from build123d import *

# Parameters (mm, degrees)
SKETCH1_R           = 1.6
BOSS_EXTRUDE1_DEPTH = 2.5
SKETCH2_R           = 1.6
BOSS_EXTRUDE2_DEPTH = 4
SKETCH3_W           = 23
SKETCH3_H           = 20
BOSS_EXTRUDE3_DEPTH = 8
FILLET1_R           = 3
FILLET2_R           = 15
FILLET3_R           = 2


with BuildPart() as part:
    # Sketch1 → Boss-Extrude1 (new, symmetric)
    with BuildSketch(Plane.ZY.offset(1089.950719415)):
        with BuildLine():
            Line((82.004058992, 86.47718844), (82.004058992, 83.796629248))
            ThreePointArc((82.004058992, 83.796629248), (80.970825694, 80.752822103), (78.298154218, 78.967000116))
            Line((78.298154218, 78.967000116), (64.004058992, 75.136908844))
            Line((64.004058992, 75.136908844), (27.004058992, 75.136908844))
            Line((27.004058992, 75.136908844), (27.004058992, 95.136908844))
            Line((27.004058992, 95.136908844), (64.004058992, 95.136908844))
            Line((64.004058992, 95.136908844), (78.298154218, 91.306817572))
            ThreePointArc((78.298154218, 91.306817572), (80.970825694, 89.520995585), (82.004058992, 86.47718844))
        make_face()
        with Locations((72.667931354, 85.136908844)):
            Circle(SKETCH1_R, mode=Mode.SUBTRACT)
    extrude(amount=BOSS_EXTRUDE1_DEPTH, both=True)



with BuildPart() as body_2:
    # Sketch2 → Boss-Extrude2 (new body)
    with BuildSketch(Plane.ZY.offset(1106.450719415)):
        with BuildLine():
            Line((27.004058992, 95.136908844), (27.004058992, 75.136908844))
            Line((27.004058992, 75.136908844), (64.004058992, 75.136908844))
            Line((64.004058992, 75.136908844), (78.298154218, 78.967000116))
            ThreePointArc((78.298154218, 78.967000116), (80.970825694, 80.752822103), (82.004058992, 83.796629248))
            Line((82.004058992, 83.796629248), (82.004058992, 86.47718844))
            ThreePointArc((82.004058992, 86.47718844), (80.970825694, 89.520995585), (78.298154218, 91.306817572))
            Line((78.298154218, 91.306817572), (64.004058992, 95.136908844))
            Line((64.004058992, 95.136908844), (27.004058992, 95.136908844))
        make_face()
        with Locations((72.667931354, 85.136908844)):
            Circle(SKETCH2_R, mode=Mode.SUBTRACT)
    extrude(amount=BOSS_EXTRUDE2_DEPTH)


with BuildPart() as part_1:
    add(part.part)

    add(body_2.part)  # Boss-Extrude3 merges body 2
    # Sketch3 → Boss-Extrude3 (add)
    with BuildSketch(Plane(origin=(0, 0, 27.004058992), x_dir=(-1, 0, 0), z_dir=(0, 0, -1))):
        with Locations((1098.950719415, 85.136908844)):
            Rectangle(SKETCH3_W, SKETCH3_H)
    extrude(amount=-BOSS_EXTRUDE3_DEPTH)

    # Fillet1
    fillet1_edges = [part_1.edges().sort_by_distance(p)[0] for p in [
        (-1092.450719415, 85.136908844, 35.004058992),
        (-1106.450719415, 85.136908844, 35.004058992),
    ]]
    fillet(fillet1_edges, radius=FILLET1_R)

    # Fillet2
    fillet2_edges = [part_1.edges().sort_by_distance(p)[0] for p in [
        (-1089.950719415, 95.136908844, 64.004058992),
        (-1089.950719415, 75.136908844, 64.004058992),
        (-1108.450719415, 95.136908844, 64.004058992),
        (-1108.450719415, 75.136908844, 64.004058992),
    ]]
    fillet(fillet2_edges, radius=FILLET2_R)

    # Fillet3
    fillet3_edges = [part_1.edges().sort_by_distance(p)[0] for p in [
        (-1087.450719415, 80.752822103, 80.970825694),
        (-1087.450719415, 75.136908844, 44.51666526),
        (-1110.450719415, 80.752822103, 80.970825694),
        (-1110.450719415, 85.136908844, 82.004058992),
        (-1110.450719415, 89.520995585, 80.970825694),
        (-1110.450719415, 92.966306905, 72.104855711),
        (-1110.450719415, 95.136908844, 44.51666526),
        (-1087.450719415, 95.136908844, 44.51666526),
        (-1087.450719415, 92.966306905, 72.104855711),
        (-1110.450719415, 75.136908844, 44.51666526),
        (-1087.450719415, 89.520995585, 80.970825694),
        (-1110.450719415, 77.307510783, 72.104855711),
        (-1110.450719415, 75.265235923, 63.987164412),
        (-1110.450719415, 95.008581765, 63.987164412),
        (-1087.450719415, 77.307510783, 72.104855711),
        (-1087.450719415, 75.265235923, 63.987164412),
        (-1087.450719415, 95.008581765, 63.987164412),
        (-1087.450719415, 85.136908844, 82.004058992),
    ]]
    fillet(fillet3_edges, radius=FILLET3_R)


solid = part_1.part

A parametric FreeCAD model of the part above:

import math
import FreeCAD as App
import Part
import Sketcher

V = App.Vector
Q = App.Units.Quantity


def edges_at(feature, points):
    """Names of the edges that pass closest to the given points."""
    edges = feature.Shape.Edges
    near = lambda p: min(range(len(edges)), key=lambda i: edges[i].distToShape(Part.Vertex(*p))[0])
    return sorted({f"Edge{near(p) + 1}" for p in points})

doc = App.newDocument("Part")
body = doc.addObject("PartDesign::Body", "Body")

sketch1 = body.newObject("Sketcher::SketchObject", "Sketch")
sketch1.AttachmentSupport = (doc.getObject("YZ_Plane"), [""])
sketch1.MapMode = "FlatFace"
sketch1.AttachmentOffset = App.Placement(V(0, 0, -1089.950719), App.Rotation())
sketch1.addGeometry([
    Part.LineSegment(V(83.8, 82, 0), V(86.5, 82, 0)),
    Part.ArcOfCircle(Part.Circle(V(86.5, 77, 0), V(0, 0, 1), 5), math.radians(15), math.radians(90)),
    Part.LineSegment(V(91.3, 78.3, 0), V(95.1, 64, 0)),
    Part.LineSegment(V(95.1, 64, 0), V(95.1, 27, 0)),
    Part.LineSegment(V(95.1, 27, 0), V(75.1, 27, 0)),
    Part.LineSegment(V(75.1, 27, 0), V(75.1, 64, 0)),
    Part.LineSegment(V(75.1, 64, 0), V(79, 78.3, 0)),
    Part.ArcOfCircle(Part.Circle(V(83.8, 77, 0), V(0, 0, 1), 5), math.radians(90), math.radians(165)),
    Part.Circle(V(85.1, 72.7, 0), V(0, 0, 1), 1.6),
], False)
sketch1.addConstraint([
    Sketcher.Constraint("Tangent", 0, 2, 1, 2),
    Sketcher.Constraint("Tangent", 1, 1, 2, 1),
    Sketcher.Constraint("Coincident", 2, 2, 3, 1),
    Sketcher.Constraint("Coincident", 3, 2, 4, 1),
    Sketcher.Constraint("Coincident", 4, 2, 5, 1),
    Sketcher.Constraint("Coincident", 5, 2, 6, 1),
    Sketcher.Constraint("Tangent", 6, 2, 7, 2),
    Sketcher.Constraint("Tangent", 7, 1, 0, 1),
    Sketcher.Constraint("Horizontal", 0),
    Sketcher.Constraint("Vertical", 3),
    Sketcher.Constraint("Horizontal", 4),
    Sketcher.Constraint("Vertical", 5),
    Sketcher.Constraint("Equal", 1, 7),
    Sketcher.Constraint("Horizontal", 2, 2, 5, 2),
    Sketcher.Constraint("Horizontal", 1, 1, 6, 2),
    Sketcher.Constraint("Radius", 1, Q("5 mm")),
    Sketcher.Constraint("Diameter", 8, Q("3.2 mm")),
    Sketcher.Constraint("DistanceX", 4, 2, 4, 1, Q("20 mm")),
    Sketcher.Constraint("DistanceY", 3, 2, 3, 1, Q("37 mm")),
    Sketcher.Constraint("Angle", 2, Q("-75 deg")),
    Sketcher.Constraint("DistanceX", 8, 3, 2, 2, Q("10 mm")),
    Sketcher.Constraint("DistanceY", 2, 2, 1, 3, Q("13 mm")),
    Sketcher.Constraint("DistanceX", -1, 1, 6, 2, Q("78.967 mm")),
    Sketcher.Constraint("DistanceY", -1, 1, 1, 3, Q("77.004059 mm")),
    Sketcher.Constraint("DistanceY", -1, 1, 8, 3, Q("72.667931 mm")),
])
pad1 = body.newObject("PartDesign::Pad", "Pad")
pad1.Profile = sketch1
pad1.Length = 5
pad1.Midplane = True
body2 = doc.addObject("PartDesign::Body", "Body001")

sketch2 = body2.newObject("Sketcher::SketchObject", "Sketch001")
sketch2.AttachmentSupport = (doc.getObject("YZ_Plane001"), [""])
sketch2.MapMode = "FlatFace"
sketch2.AttachmentOffset = App.Placement(V(0, 0, -1106.450719), App.Rotation())
sketch2.addGeometry([
    Part.LineSegment(V(95.1, 27, 0), V(75.1, 27, 0)),
    Part.LineSegment(V(75.1, 27, 0), V(75.1, 64, 0)),
    Part.LineSegment(V(75.1, 64, 0), V(79, 78.3, 0)),
    Part.ArcOfCircle(Part.Circle(V(83.8, 77, 0), V(0, 0, 1), 5), math.radians(90), math.radians(165)),
    Part.LineSegment(V(83.8, 82, 0), V(86.5, 82, 0)),
    Part.ArcOfCircle(Part.Circle(V(86.5, 77, 0), V(0, 0, 1), 5), math.radians(15), math.radians(90)),
    Part.LineSegment(V(91.3, 78.3, 0), V(95.1, 64, 0)),
    Part.LineSegment(V(95.1, 64, 0), V(95.1, 27, 0)),
    Part.Circle(V(85.1, 72.7, 0), V(0, 0, 1), 1.6),
], False)
sketch2.addConstraint([
    Sketcher.Constraint("Coincident", 0, 2, 1, 1),
    Sketcher.Constraint("Coincident", 1, 2, 2, 1),
    Sketcher.Constraint("Tangent", 2, 2, 3, 2),
    Sketcher.Constraint("Tangent", 3, 1, 4, 1),
    Sketcher.Constraint("Tangent", 4, 2, 5, 2),
    Sketcher.Constraint("Tangent", 5, 1, 6, 1),
    Sketcher.Constraint("Coincident", 6, 2, 7, 1),
    Sketcher.Constraint("Coincident", 7, 2, 0, 1),
    Sketcher.Constraint("Horizontal", 0),
    Sketcher.Constraint("Vertical", 1),
    Sketcher.Constraint("Horizontal", 4),
    Sketcher.Constraint("Vertical", 7),
    Sketcher.Constraint("Equal", 3, 5),
    Sketcher.Constraint("Horizontal", 2, 2, 5, 1),
    Sketcher.Constraint("Horizontal", 1, 2, 6, 2),
    Sketcher.Constraint("Radius", 3, Q("5 mm")),
    Sketcher.Constraint("Diameter", 8, Q("3.2 mm")),
    Sketcher.Constraint("DistanceX", 0, 2, 0, 1, Q("20 mm")),
    Sketcher.Constraint("DistanceY", 1, 1, 1, 2, Q("37 mm")),
    Sketcher.Constraint("Angle", 2, Q("75 deg")),
    Sketcher.Constraint("DistanceX", 0, 2, 8, 3, Q("10 mm")),
    Sketcher.Constraint("DistanceY", 0, 2, 3, 3, Q("50 mm")),
    Sketcher.Constraint("DistanceX", -1, 1, 2, 2, Q("78.967 mm")),
    Sketcher.Constraint("DistanceY", -1, 1, 3, 3, Q("77.004059 mm")),
    Sketcher.Constraint("DistanceY", -1, 1, 8, 3, Q("72.667931 mm")),
])
pad2 = body2.newObject("PartDesign::Pad", "Pad001")
pad2.Profile = sketch2
pad2.Length = 4
pad2.Reversed = True
body.AllowCompound = True
doc.recompute()

boolean = body.newObject("PartDesign::Boolean", "Boolean")
boolean.Type = "Fuse"
boolean.addObjects([body2])

sketch3 = body.newObject("Sketcher::SketchObject", "Sketch002")
sketch3.AttachmentSupport = (doc.getObject("XY_Plane"), [""])
sketch3.MapMode = "FlatFace"
sketch3.AttachmentOffset = App.Placement(V(0, 0, 27.004059), App.Rotation())
sketch3.addGeometry([
    Part.LineSegment(V(-1087, 95, 0), V(-1087, 75, 0)),
    Part.LineSegment(V(-1087, 75, 0), V(-1110, 75, 0)),
    Part.LineSegment(V(-1110, 75, 0), V(-1110, 95, 0)),
    Part.LineSegment(V(-1110, 95, 0), V(-1087, 95, 0)),
], False)
sketch3.addConstraint([
    Sketcher.Constraint("Coincident", 0, 2, 1, 1),
    Sketcher.Constraint("Coincident", 1, 2, 2, 1),
    Sketcher.Constraint("Coincident", 2, 2, 3, 1),
    Sketcher.Constraint("Coincident", 3, 2, 0, 1),
    Sketcher.Constraint("Vertical", 0),
    Sketcher.Constraint("Horizontal", 1),
    Sketcher.Constraint("Vertical", 2),
    Sketcher.Constraint("Horizontal", 3),
    Sketcher.Constraint("DistanceX", 1, 2, 1, 1, Q("23 mm")),
    Sketcher.Constraint("DistanceY", 0, 2, 0, 1, Q("20 mm")),
    Sketcher.Constraint("DistanceX", 0, 2, -1, 1, Q("1087.450719 mm")),
    Sketcher.Constraint("DistanceY", -1, 1, 0, 2, Q("75.136909 mm")),
])
pad3 = body.newObject("PartDesign::Pad", "Pad002")
pad3.Profile = sketch3
pad3.Length = 8
doc.recompute()

fillet = body.newObject("PartDesign::Fillet", "Fillet")
fillet.Base = (pad3, edges_at(pad3, [(-1092.451, 85.137, 35.004), (-1106.451, 85.137, 35.004)]))
fillet.Radius = 3
doc.recompute()

fillet2 = body.newObject("PartDesign::Fillet", "Fillet001")
fillet2.Base = (fillet, edges_at(fillet, [
    (-1089.951, 95.137, 64.004),
    (-1089.951, 75.137, 64.004),
    (-1108.451, 95.137, 64.004),
    (-1108.451, 75.137, 64.004),
]))
fillet2.Radius = 15
doc.recompute()

fillet3 = body.newObject("PartDesign::Fillet", "Fillet002")
fillet3.Base = (fillet2, edges_at(fillet2, [
    (-1087.451, 80.753, 80.971),
    (-1087.451, 75.137, 44.517),
    (-1110.451, 80.753, 80.971),
    (-1110.451, 85.137, 82.004),
    (-1110.451, 89.521, 80.971),
    (-1110.451, 92.966, 72.105),
    (-1110.451, 95.137, 44.517),
    (-1087.451, 95.137, 44.517),
    (-1087.451, 92.966, 72.105),
    (-1110.451, 75.137, 44.517),
    (-1087.451, 89.521, 80.971),
    (-1110.451, 77.308, 72.105),
    (-1110.451, 75.265, 63.987),
    (-1110.451, 95.009, 63.987),
    (-1087.451, 77.308, 72.105),
    (-1087.451, 75.265, 63.987),
    (-1087.451, 95.009, 63.987),
    (-1087.451, 85.137, 82.004),
]))
fillet3.Radius = 2

doc.recompute()
